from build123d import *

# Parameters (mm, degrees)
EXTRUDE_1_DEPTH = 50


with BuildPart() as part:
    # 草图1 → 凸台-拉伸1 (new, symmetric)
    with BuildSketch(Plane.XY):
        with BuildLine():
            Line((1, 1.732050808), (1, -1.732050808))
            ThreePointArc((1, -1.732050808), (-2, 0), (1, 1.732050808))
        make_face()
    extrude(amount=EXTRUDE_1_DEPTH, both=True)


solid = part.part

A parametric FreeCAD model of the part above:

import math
import FreeCAD as App
import Part
import Sketcher
from FreeCAD import Vector

doc = App.newDocument("Part")
body = doc.addObject("PartDesign::Body", "Body")

# Sketch on XY plane
sketch1 = doc.addObject("Sketcher::SketchObject", "Sketch")
body.addObject(sketch1)
sketch1.AttachmentSupport = (doc.XY_Plane, [""])
sketch1.MapMode = "FlatFace"
sketch1.addGeometry([
    Part.LineSegment(Vector(1, -1.7, 0), Vector(1, 1.7, 0)),
    Part.ArcOfCircle(Part.Circle(Vector(0, 0, 0), Vector(0, 0, 1), 2), math.radians(60), math.radians(300)),
], False)
sketch1.addConstraint([
    Sketcher.Constraint("Coincident", 0, 1, 1, 2),
    Sketcher.Constraint("Coincident", 1, 1, 0, 2),
    Sketcher.Constraint("Vertical", 0),
    Sketcher.Constraint("Coincident", 1, 3, -1, 1),
    Sketcher.Constraint("Radius", 1, 2.0),
    Sketcher.Constraint("DistanceX", -1, 1, 0, 1, 1.0),
])
pad1 = doc.addObject("PartDesign::Pad", "Pad")
body.addObject(pad1)
pad1.Profile = sketch1
pad1.Length = 100
pad1.Midplane = True

doc.recompute()
